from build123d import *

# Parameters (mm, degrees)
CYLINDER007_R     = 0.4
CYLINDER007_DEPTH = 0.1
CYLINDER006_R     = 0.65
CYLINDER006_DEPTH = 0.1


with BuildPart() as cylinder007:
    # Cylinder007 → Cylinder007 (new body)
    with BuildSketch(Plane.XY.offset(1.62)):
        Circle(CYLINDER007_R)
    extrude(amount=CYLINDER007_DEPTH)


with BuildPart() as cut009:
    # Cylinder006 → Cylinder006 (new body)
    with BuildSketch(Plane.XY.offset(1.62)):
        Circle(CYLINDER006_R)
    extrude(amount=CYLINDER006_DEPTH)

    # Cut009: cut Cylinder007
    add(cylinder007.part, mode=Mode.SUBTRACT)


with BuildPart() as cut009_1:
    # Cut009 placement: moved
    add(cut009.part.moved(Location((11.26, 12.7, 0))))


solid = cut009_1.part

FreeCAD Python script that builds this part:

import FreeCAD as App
import Part
import Sketcher
from FreeCAD import Vector

doc = App.newDocument("Part")
body = doc.addObject("PartDesign::Body", "Body")

# Sketch on XY plane
sketch1 = doc.addObject("Sketcher::SketchObject", "Sketch")
body.addObject(sketch1)
sketch1.AttachmentSupport = (doc.XY_Plane, [""])
sketch1.MapMode = "FlatFace"
sketch1.AttachmentOffset = App.Placement(Vector(0, 0, 1.62), App.Rotation())
sketch1.addGeometry(Part.Circle(Vector(0, 0, 0), Vector(0, 0, 1), 0.4), False)
sketch1.addConstraint([
    Sketcher.Constraint("Coincident", 0, 3, -1, 1),
    Sketcher.Constraint("Diameter", 0, 0.8),
])
pad1 = doc.addObject("PartDesign::Pad", "Pad")
body.addObject(pad1)
pad1.Profile = sketch1
pad1.Length = 0.1
body2 = doc.addObject("PartDesign::Body", "Body001")

# Sketch on XY plane
sketch2 = doc.addObject("Sketcher::SketchObject", "Sketch001")
body2.addObject(sketch2)
sketch2.AttachmentSupport = (doc.getObject("XY_Plane001"), [""])
sketch2.MapMode = "FlatFace"
sketch2.AttachmentOffset = App.Placement(Vector(0, 0, 1.62), App.Rotation())
sketch2.addGeometry(Part.Circle(Vector(0, 0, 0), Vector(0, 0, 1), 0.65), False)
sketch2.addConstraint([
    Sketcher.Constraint("Coincident", 0, 3, -1, 1),
    Sketcher.Constraint("Diameter", 0, 1.3),
])
pad2 = doc.addObject("PartDesign::Pad", "Pad001")
body2.addObject(pad2)
pad2.Profile = sketch2
pad2.Length = 0.1
doc.recompute()

boolean = doc.addObject("PartDesign::Boolean", "Boolean")
body2.addObject(boolean)
boolean.Type = "Cut"
boolean.addObjects([body])
body3 = doc.addObject("PartDesign::Body", "Body002")
doc.recompute()

body2.Placement = App.Placement(Vector(11.26, 12.7, 0), App.Rotation(Vector(0, 0, 1), 0))
boolean2 = doc.addObject("PartDesign::Boolean", "Boolean001")
body3.addObject(boolean2)
boolean2.Type = "Fuse"
boolean2.addObjects([body2])

doc.recompute()
